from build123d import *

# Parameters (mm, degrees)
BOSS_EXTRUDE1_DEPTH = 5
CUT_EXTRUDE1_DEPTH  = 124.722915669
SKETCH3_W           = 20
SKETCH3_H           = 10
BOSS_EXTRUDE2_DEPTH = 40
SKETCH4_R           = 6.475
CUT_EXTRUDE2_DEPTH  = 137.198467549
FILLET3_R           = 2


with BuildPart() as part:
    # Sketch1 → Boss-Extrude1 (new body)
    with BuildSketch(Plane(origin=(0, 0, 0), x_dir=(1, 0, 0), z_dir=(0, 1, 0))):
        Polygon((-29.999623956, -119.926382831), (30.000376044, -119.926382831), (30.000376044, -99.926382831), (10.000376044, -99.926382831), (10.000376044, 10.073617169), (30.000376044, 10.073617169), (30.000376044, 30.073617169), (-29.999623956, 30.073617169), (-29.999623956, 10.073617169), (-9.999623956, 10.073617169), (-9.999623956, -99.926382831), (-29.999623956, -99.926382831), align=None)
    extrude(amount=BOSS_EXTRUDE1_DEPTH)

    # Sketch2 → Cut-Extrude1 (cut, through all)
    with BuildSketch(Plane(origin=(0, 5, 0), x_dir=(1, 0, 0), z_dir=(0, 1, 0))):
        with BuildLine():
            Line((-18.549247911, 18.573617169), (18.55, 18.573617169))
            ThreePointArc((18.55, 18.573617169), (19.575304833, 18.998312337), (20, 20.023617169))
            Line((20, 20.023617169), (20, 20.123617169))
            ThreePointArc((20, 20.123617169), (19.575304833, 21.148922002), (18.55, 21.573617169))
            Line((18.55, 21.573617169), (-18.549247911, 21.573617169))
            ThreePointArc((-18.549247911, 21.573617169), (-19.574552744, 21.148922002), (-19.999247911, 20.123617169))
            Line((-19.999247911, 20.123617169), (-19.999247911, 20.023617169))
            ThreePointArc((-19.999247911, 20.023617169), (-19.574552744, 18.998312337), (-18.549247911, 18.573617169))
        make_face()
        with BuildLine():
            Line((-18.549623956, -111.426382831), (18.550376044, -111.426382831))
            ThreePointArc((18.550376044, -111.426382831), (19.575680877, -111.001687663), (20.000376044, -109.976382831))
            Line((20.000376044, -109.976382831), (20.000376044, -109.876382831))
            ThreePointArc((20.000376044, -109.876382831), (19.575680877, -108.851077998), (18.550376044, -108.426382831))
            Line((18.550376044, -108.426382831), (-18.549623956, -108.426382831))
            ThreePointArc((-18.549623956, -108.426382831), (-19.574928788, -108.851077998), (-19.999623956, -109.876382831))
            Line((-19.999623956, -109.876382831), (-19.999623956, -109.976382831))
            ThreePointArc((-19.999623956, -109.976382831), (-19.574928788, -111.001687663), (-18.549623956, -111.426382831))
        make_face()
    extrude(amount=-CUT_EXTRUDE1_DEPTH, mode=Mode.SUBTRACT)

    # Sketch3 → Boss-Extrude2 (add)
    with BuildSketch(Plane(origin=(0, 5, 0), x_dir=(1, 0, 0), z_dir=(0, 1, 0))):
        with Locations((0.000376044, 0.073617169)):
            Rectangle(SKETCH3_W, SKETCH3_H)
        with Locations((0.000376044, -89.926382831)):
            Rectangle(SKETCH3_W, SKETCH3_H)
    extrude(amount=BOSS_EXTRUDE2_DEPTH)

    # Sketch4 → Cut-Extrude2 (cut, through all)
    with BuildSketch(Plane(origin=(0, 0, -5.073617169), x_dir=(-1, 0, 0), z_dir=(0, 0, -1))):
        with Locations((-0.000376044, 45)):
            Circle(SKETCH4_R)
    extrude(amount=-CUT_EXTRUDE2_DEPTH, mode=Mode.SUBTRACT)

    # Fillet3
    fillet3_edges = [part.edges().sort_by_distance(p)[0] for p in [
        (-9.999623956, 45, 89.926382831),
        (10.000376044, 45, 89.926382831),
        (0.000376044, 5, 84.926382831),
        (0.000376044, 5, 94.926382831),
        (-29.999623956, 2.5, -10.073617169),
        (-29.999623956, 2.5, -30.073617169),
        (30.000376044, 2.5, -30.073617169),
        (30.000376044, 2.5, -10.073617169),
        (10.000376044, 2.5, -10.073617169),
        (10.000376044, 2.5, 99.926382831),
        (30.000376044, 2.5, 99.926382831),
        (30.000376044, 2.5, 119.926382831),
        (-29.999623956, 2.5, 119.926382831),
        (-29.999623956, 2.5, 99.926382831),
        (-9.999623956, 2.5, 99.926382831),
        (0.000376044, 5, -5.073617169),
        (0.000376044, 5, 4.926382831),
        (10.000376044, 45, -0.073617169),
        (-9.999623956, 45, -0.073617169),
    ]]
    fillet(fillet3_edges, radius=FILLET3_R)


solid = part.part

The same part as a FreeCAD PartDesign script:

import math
import FreeCAD as App
import Part
import Sketcher

V = App.Vector
Q = App.Units.Quantity


def edges_at(feature, points):
    """Names of the edges that pass closest to the given points."""
    edges = feature.Shape.Edges
    near = lambda p: min(range(len(edges)), key=lambda i: edges[i].distToShape(Part.Vertex(*p))[0])
    return sorted({f"Edge{near(p) + 1}" for p in points})

doc = App.newDocument("Part")
body = doc.addObject("PartDesign::Body", "Body")

# Sketch on XZ plane
sketch1 = body.newObject("Sketcher::SketchObject", "Sketch")
sketch1.AttachmentSupport = (doc.getObject("XZ_Plane"), [""])
sketch1.MapMode = "FlatFace"
sketch1.addGeometry(Part.LineSegment(V(-30, 120, 0), V(30, 120, 0)), False)
sketch1.addGeometry(Part.LineSegment(V(30, 120, 0), V(30, 100, 0)), False)
sketch1.addGeometry(Part.LineSegment(V(30, 100, 0), V(10, 100, 0)), False)
sketch1.addGeometry(Part.LineSegment(V(10, 100, 0), V(10, -10, 0)), False)
sketch1.addGeometry(Part.LineSegment(V(10, -10, 0), V(30, -10, 0)), False)
sketch1.addGeometry(Part.LineSegment(V(30, -10, 0), V(30, -30, 0)), False)
sketch1.addGeometry(Part.LineSegment(V(30, -30, 0), V(-30, -30, 0)), False)
sketch1.addGeometry(Part.LineSegment(V(-30, -30, 0), V(-30, -10, 0)), False)
sketch1.addGeometry(Part.LineSegment(V(-30, -10, 0), V(-10, -10, 0)), False)
sketch1.addGeometry(Part.LineSegment(V(-10, -10, 0), V(-10, 100, 0)), False)
sketch1.addGeometry(Part.LineSegment(V(-10, 100, 0), V(-30, 100, 0)), False)
sketch1.addGeometry(Part.LineSegment(V(-30, 100, 0), V(-30, 120, 0)), False)
sketch1.addConstraint(Sketcher.Constraint("Coincident", 0, 2, 1, 1))
sketch1.addConstraint(Sketcher.Constraint("Coincident", 1, 2, 2, 1))
sketch1.addConstraint(Sketcher.Constraint("Coincident", 2, 2, 3, 1))
sketch1.addConstraint(Sketcher.Constraint("Coincident", 3, 2, 4, 1))
sketch1.addConstraint(Sketcher.Constraint("Coincident", 4, 2, 5, 1))
sketch1.addConstraint(Sketcher.Constraint("Coincident", 5, 2, 6, 1))
sketch1.addConstraint(Sketcher.Constraint("Coincident", 6, 2, 7, 1))
sketch1.addConstraint(Sketcher.Constraint("Coincident", 7, 2, 8, 1))
sketch1.addConstraint(Sketcher.Constraint("Coincident", 8, 2, 9, 1))
sketch1.addConstraint(Sketcher.Constraint("Coincident", 9, 2, 10, 1))
sketch1.addConstraint(Sketcher.Constraint("Coincident", 10, 2, 11, 1))
sketch1.addConstraint(Sketcher.Constraint("Coincident", 11, 2, 0, 1))
sketch1.addConstraint(Sketcher.Constraint("Horizontal", 0))
sketch1.addConstraint(Sketcher.Constraint("Vertical", 1))
sketch1.addConstraint(Sketcher.Constraint("Horizontal", 2))
sketch1.addConstraint(Sketcher.Constraint("Vertical", 3))
sketch1.addConstraint(Sketcher.Constraint("Horizontal", 4))
sketch1.addConstraint(Sketcher.Constraint("Vertical", 5))
sketch1.addConstraint(Sketcher.Constraint("Horizontal", 6))
sketch1.addConstraint(Sketcher.Constraint("Vertical", 7))
sketch1.addConstraint(Sketcher.Constraint("Horizontal", 8))
sketch1.addConstraint(Sketcher.Constraint("Vertical", 9))
sketch1.addConstraint(Sketcher.Constraint("Horizontal", 10))
sketch1.addConstraint(Sketcher.Constraint("Vertical", 11))
sketch1.addConstraint(Sketcher.Constraint("Horizontal", 4, 2, 7, 2))
sketch1.addConstraint(Sketcher.Constraint("Horizontal", 2, 2, 9, 2))
sketch1.addConstraint(Sketcher.Constraint("Vertical", 1, 2, 4, 2))
sketch1.addConstraint(Sketcher.Constraint("Vertical", 7, 2, 10, 2))
sketch1.addConstraint(Sketcher.Constraint("Equal", 4, 8))
sketch1.addConstraint(Sketcher.Constraint("Equal", 10, 1))
sketch1.addConstraint(Sketcher.Constraint("Equal", 1, 5))
sketch1.addConstraint(Sketcher.Constraint("DistanceX", 0, 1, 0, 2, Q("60 mm")))
sketch1.addConstraint(Sketcher.Constraint("DistanceX", 2, 2, 2, 1, Q("20 mm")))
sketch1.addConstraint(Sketcher.Constraint("DistanceY", 3, 2, 3, 1, Q("110 mm")))
sketch1.addConstraint(Sketcher.Constraint("DistanceX", -1, 1, 0, 2, Q("30.000376 mm")))
sketch1.addConstraint(Sketcher.Constraint("DistanceY", -1, 1, 0, 2, Q("119.926383 mm")))
pad1 = body.newObject("PartDesign::Pad", "Pad")
pad1.Profile = sketch1
pad1.Length = 5
pad1.Reversed = True

# Sketch on XZ plane
sketch2 = body.newObject("Sketcher::SketchObject", "Sketch001")
sketch2.AttachmentSupport = (doc.getObject("XZ_Plane"), [""])
sketch2.MapMode = "FlatFace"
sketch2.AttachmentOffset = App.Placement(V(0, 0, -5), App.Rotation())
sketch2.addGeometry(Part.LineSegment(V(-18.55, -18.57, 0), V(18.55, -18.57, 0)), False)
sketch2.addGeometry(Part.ArcOfCircle(Part.Circle(V(18.55, -20.02, 0), V(0, 0, 1), 1.45), math.radians(0), math.radians(90)), False)
sketch2.addGeometry(Part.LineSegment(V(20, -20.02, 0), V(20, -20.12, 0)), False)
sketch2.addGeometry(Part.ArcOfCircle(Part.Circle(V(18.55, -20.12, 0), V(0, 0, 1), 1.45), math.radians(-90), math.radians(0)), False)
sketch2.addGeometry(Part.LineSegment(V(18.55, -21.57, 0), V(-18.55, -21.57, 0)), False)
sketch2.addGeometry(Part.ArcOfCircle(Part.Circle(V(-18.55, -20.12, 0), V(0, 0, 1), 1.45), math.radians(180), math.radians(270)), False)
sketch2.addGeometry(Part.LineSegment(V(-20, -20.12, 0), V(-20, -20.02, 0)), False)
sketch2.addGeometry(Part.ArcOfCircle(Part.Circle(V(-18.55, -20.02, 0), V(0, 0, 1), 1.45), math.radians(90), math.radians(180)), False)
sketch2.addGeometry(Part.LineSegment(V(-18.55, 111.43, 0), V(18.55, 111.43, 0)), False)
sketch2.addGeometry(Part.ArcOfCircle(Part.Circle(V(18.55, 109.98, 0), V(0, 0, 1), 1.45), math.radians(0), math.radians(90)), False)
sketch2.addGeometry(Part.LineSegment(V(20, 109.98, 0), V(20, 109.88, 0)), False)
sketch2.addGeometry(Part.ArcOfCircle(Part.Circle(V(18.55, 109.88, 0), V(0, 0, 1), 1.45), math.radians(-90), math.radians(0)), False)
sketch2.addGeometry(Part.LineSegment(V(18.55, 108.43, 0), V(-18.55, 108.43, 0)), False)
sketch2.addGeometry(Part.ArcOfCircle(Part.Circle(V(-18.55, 109.88, 0), V(0, 0, 1), 1.45), math.radians(-180), math.radians(-90)), False)
sketch2.addGeometry(Part.LineSegment(V(-20, 109.88, 0), V(-20, 109.98, 0)), False)
sketch2.addGeometry(Part.ArcOfCircle(Part.Circle(V(-18.55, 109.98, 0), V(0, 0, 1), 1.45), math.radians(90), math.radians(180)), False)
sketch2.addConstraint(Sketcher.Constraint("Tangent", 0, 2, 1, 2))
sketch2.addConstraint(Sketcher.Constraint("Tangent", 1, 1, 2, 1))
sketch2.addConstraint(Sketcher.Constraint("Tangent", 2, 2, 3, 2))
sketch2.addConstraint(Sketcher.Constraint("Tangent", 3, 1, 4, 1))
sketch2.addConstraint(Sketcher.Constraint("Tangent", 4, 2, 5, 2))
sketch2.addConstraint(Sketcher.Constraint("Tangent", 5, 1, 6, 1))
sketch2.addConstraint(Sketcher.Constraint("Tangent", 6, 2, 7, 2))
sketch2.addConstraint(Sketcher.Constraint("Tangent", 7, 1, 0, 1))
sketch2.addConstraint(Sketcher.Constraint("Tangent", 8, 2, 9, 2))
sketch2.addConstraint(Sketcher.Constraint("Tangent", 9, 1, 10, 1))
sketch2.addConstraint(Sketcher.Constraint("Tangent", 10, 2, 11, 2))
sketch2.addConstraint(Sketcher.Constraint("Tangent", 11, 1, 12, 1))
sketch2.addConstraint(Sketcher.Constraint("Tangent", 12, 2, 13, 2))
sketch2.addConstraint(Sketcher.Constraint("Tangent", 13, 1, 14, 1))
sketch2.addConstraint(Sketcher.Constraint("Tangent", 14, 2, 15, 2))
sketch2.addConstraint(Sketcher.Constraint("Tangent", 15, 1, 8, 1))
sketch2.addConstraint(Sketcher.Constraint("Horizontal", 0))
sketch2.addConstraint(Sketcher.Constraint("Vertical", 2))
sketch2.addConstraint(Sketcher.Constraint("Horizontal", 4))
sketch2.addConstraint(Sketcher.Constraint("Vertical", 6))
sketch2.addConstraint(Sketcher.Constraint("Horizontal", 8))
sketch2.addConstraint(Sketcher.Constraint("Vertical", 10))
sketch2.addConstraint(Sketcher.Constraint("Horizontal", 12))
sketch2.addConstraint(Sketcher.Constraint("Vertical", 14))
sketch2.addConstraint(Sketcher.Constraint("Equal", 1, 3))
sketch2.addConstraint(Sketcher.Constraint("Equal", 3, 5))
sketch2.addConstraint(Sketcher.Constraint("Equal", 5, 7))
sketch2.addConstraint(Sketcher.Constraint("Equal", 7, 9))
sketch2.addConstraint(Sketcher.Constraint("Equal", 9, 11))
sketch2.addConstraint(Sketcher.Constraint("Equal", 11, 13))
sketch2.addConstraint(Sketcher.Constraint("Equal", 13, 15))
sketch2.addConstraint(Sketcher.Constraint("Equal", 6, 10))
sketch2.addConstraint(Sketcher.Constraint("Radius", 1, Q("1.45 mm")))
sketch2.addConstraint(Sketcher.Constraint("DistanceX", 8, 1, 8, 2, Q("37.1 mm")))
sketch2.addConstraint(Sketcher.Constraint("DistanceY", 2, 2, 2, 1, Q("0.1 mm")))
sketch2.addConstraint(Sketcher.Constraint("DistanceX", -1, 1, 1, 1, Q("20 mm")))
sketch2.addConstraint(Sketcher.Constraint("DistanceY", 1, 3, 9, 3, Q("130 mm")))
sketch2.addConstraint(Sketcher.Constraint("DistanceX", 0, 1, 0, 2, Q("37.099248 mm")))
sketch2.addConstraint(Sketcher.Constraint("DistanceY", 1, 3, -1, 1, Q("20.023617 mm")))
sketch2.addConstraint(Sketcher.Constraint("DistanceX", -1, 1, 9, 3, Q("18.550376 mm")))
pocket1 = body.newObject("PartDesign::Pocket", "Pocket")
pocket1.Profile = sketch2
pocket1.Type = "ThroughAll"
pocket1.Reversed = True

# Sketch on XZ plane
sketch3 = body.newObject("Sketcher::SketchObject", "Sketch002")
sketch3.AttachmentSupport = (doc.getObject("XZ_Plane"), [""])
sketch3.MapMode = "FlatFace"
sketch3.AttachmentOffset = App.Placement(V(0, 0, -5), App.Rotation())
sketch3.addGeometry(Part.LineSegment(V(-10, -5, 0), V(-10, 5, 0)), False)
sketch3.addGeometry(Part.LineSegment(V(-10, 5, 0), V(10, 5, 0)), False)
sketch3.addGeometry(Part.LineSegment(V(10, 5, 0), V(10, -5, 0)), False)
sketch3.addGeometry(Part.LineSegment(V(10, -5, 0), V(-10, -5, 0)), False)
sketch3.addGeometry(Part.LineSegment(V(-10, 85, 0), V(-10, 95, 0)), False)
sketch3.addGeometry(Part.LineSegment(V(-10, 95, 0), V(10, 95, 0)), False)
sketch3.addGeometry(Part.LineSegment(V(10, 95, 0), V(10, 85, 0)), False)
sketch3.addGeometry(Part.LineSegment(V(10, 85, 0), V(-10, 85, 0)), False)
sketch3.addConstraint(Sketcher.Constraint("Coincident", 0, 2, 1, 1))
sketch3.addConstraint(Sketcher.Constraint("Coincident", 1, 2, 2, 1))
sketch3.addConstraint(Sketcher.Constraint("Coincident", 2, 2, 3, 1))
sketch3.addConstraint(Sketcher.Constraint("Coincident", 3, 2, 0, 1))
sketch3.addConstraint(Sketcher.Constraint("Coincident", 4, 2, 5, 1))
sketch3.addConstraint(Sketcher.Constraint("Coincident", 5, 2, 6, 1))
sketch3.addConstraint(Sketcher.Constraint("Coincident", 6, 2, 7, 1))
sketch3.addConstraint(Sketcher.Constraint("Coincident", 7, 2, 4, 1))
sketch3.addConstraint(Sketcher.Constraint("Vertical", 0))
sketch3.addConstraint(Sketcher.Constraint("Horizontal", 1))
sketch3.addConstraint(Sketcher.Constraint("Vertical", 2))
sketch3.addConstraint(Sketcher.Constraint("Horizontal", 3))
sketch3.addConstraint(Sketcher.Constraint("Vertical", 4))
sketch3.addConstraint(Sketcher.Constraint("Horizontal", 5))
sketch3.addConstraint(Sketcher.Constraint("Vertical", 6))
sketch3.addConstraint(Sketcher.Constraint("Horizontal", 7))
sketch3.addConstraint(Sketcher.Constraint("Vertical", 3, 2, 4, 2))
sketch3.addConstraint(Sketcher.Constraint("Vertical", 2, 2, 5, 2))
sketch3.addConstraint(Sketcher.Constraint("Equal", 2, 4))
sketch3.addConstraint(Sketcher.Constraint("DistanceX", 1, 1, 1, 2, Q("20 mm")))
sketch3.addConstraint(Sketcher.Constraint("DistanceY", 0, 1, 0, 2, Q("10 mm")))
sketch3.addConstraint(Sketcher.Constraint("DistanceY", 0, 2, 4, 2, Q("90 mm")))
sketch3.addConstraint(Sketcher.Constraint("DistanceX", 0, 2, -1, 1, Q("9.999624 mm")))
sketch3.addConstraint(Sketcher.Constraint("DistanceY", -1, 1, 0, 2, Q("4.926383 mm")))
pad2 = body.newObject("PartDesign::Pad", "Pad001")
pad2.Profile = sketch3
pad2.Length = 40
pad2.Reversed = True

# Sketch on XY plane
sketch4 = body.newObject("Sketcher::SketchObject", "Sketch003")
sketch4.AttachmentSupport = (doc.getObject("XY_Plane"), [""])
sketch4.MapMode = "FlatFace"
sketch4.AttachmentOffset = App.Placement(V(0, 0, -5.073617), App.Rotation())
sketch4.addGeometry(Part.Circle(V(0, 45, 0), V(0, 0, 1), 6), False)
sketch4.addConstraint(Sketcher.Constraint("Diameter", 0, Q("12.95 mm")))
sketch4.addConstraint(Sketcher.Constraint("DistanceY", -1, 1, 0, 3, Q("45 mm")))
sketch4.addConstraint(Sketcher.Constraint("DistanceX", -1, 1, 0, 3, Q("0.000376 mm")))
pocket2 = body.newObject("PartDesign::Pocket", "Pocket001")
pocket2.Profile = sketch4
pocket2.Type = "ThroughAll"
pocket2.Reversed = True
doc.recompute()

fillet = body.newObject("PartDesign::Fillet", "Fillet")
fillet.Base = (pocket2, edges_at(pocket2, [
    (-10, 45, 89.926),
    (10, 45, 89.926),
    (0, 5, 84.926),
    (0, 5, 94.926),
    (-30, 2.5, -10.074),
    (-30, 2.5, -30.074),
    (30, 2.5, -30.074),
    (30, 2.5, -10.074),
    (10, 2.5, -10.074),
    (10, 2.5, 99.926),
    (30, 2.5, 99.926),
    (30, 2.5, 119.926),
    (-30, 2.5, 119.926),
    (-30, 2.5, 99.926),
    (-10, 2.5, 99.926),
    (0, 5, -5.074),
    (0, 5, 4.926),
    (10, 45, -0.074),
    (-10, 45, -0.074),
]))
fillet.Radius = 2

doc.recompute()
